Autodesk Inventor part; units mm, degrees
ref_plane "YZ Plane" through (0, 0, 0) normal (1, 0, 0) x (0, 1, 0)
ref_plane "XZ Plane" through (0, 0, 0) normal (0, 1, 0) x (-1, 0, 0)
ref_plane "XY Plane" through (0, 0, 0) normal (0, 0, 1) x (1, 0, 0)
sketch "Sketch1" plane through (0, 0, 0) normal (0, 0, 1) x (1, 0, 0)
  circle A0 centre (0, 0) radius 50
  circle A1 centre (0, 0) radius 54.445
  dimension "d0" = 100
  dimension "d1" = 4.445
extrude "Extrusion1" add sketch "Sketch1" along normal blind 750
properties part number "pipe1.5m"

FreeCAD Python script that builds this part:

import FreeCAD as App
import Part
import Sketcher
from FreeCAD import Vector
Q = App.Units.Quantity

doc = App.newDocument("Part")
body = doc.addObject("PartDesign::Body", "Body")

sketch1 = body.newObject("Sketcher::SketchObject", "Sketch")
sketch1.AttachmentSupport = (doc.getObject("XY_Plane"), [""])
sketch1.MapMode = "FlatFace"
sketch1.addGeometry([
    Part.Circle(Vector(0, 0, 0), Vector(0, 0, 1), 54),
    Part.Circle(Vector(0, 0, 0), Vector(0, 0, 1), 50),
], False)
sketch1.addConstraint([
    Sketcher.Constraint("Coincident", 0, 3, -1, 1),
    Sketcher.Constraint("Coincident", 1, 3, -1, 1),
    Sketcher.Constraint("Diameter", 1, Q("3.937 in")),
    Sketcher.Constraint("Diameter", 0, Q("4.287 in")),
])
pad1 = body.newObject("PartDesign::Pad", "Pad")
pad1.Profile = sketch1
pad1.Length = 750

doc.recompute()
